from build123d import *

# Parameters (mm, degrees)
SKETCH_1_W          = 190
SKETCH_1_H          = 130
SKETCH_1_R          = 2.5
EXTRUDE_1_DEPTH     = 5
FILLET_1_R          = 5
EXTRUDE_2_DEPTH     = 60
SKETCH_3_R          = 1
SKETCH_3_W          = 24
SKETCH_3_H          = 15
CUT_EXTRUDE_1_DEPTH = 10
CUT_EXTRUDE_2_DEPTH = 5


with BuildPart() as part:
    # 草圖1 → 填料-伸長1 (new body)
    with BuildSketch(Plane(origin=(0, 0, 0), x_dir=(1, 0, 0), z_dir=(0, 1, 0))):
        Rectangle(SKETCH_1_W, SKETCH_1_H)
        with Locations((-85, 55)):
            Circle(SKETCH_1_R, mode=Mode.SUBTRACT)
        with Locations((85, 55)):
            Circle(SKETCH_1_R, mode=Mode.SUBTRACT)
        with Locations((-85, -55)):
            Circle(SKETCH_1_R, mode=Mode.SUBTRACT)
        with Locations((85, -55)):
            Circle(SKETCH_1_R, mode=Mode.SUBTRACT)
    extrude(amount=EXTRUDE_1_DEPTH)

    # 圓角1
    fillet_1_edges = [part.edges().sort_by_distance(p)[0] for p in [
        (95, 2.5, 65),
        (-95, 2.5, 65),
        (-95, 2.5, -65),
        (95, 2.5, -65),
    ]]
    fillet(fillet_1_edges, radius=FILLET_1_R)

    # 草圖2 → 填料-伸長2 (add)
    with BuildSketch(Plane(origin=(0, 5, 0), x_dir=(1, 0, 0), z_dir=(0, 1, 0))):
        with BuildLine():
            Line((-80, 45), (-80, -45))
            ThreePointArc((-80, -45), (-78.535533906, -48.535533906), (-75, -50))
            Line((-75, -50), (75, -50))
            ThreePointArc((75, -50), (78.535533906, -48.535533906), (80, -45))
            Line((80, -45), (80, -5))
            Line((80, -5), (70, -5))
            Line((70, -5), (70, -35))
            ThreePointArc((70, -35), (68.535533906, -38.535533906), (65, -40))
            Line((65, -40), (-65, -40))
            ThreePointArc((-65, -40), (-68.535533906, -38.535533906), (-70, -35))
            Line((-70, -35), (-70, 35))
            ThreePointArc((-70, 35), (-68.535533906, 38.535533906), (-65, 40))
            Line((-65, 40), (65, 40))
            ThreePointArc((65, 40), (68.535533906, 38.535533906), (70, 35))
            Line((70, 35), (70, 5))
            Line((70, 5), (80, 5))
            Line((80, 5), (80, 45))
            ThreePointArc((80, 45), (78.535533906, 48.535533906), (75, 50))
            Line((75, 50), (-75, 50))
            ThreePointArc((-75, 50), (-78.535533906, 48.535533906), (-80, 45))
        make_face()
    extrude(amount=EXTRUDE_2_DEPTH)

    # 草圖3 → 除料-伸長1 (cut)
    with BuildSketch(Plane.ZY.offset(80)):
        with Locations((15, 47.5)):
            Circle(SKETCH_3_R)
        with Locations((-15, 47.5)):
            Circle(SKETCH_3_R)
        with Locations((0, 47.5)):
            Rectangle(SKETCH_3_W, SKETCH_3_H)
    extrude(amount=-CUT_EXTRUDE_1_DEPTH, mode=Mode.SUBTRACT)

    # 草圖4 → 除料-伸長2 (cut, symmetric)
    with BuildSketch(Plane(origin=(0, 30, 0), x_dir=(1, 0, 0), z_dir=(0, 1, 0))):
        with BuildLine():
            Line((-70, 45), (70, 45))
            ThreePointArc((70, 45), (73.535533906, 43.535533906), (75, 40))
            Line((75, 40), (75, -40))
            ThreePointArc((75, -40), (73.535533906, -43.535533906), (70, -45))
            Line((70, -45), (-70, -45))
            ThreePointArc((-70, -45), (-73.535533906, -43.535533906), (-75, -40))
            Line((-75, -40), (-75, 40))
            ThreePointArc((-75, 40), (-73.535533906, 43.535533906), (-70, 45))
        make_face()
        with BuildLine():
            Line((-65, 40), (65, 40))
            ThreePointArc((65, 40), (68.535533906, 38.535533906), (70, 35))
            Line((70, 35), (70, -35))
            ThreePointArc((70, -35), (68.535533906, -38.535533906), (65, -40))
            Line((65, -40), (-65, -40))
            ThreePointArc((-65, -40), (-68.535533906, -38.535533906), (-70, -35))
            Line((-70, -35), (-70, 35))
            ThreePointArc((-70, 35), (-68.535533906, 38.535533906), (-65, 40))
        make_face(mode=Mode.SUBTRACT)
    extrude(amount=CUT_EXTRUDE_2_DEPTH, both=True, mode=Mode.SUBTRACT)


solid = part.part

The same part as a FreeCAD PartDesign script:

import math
import FreeCAD as App
import Part
import Sketcher

V = App.Vector


def edges_at(feature, points):
    """Names of the edges that pass closest to the given points."""
    edges = feature.Shape.Edges
    near = lambda p: min(range(len(edges)), key=lambda i: edges[i].distToShape(Part.Vertex(*p))[0])
    return sorted({f"Edge{near(p) + 1}" for p in points})


def add_polygon(sketch, points):
    """Adds a closed chain of lines whose ends are joined by coincident constraints."""
    first, n = sketch.GeometryCount, len(points)
    for a, b in zip(points, points[1:] + points[:1]):
        sketch.addGeometry(Part.LineSegment(App.Vector(*a, 0), App.Vector(*b, 0)), False)
    for i in range(n):
        sketch.addConstraint(Sketcher.Constraint("Coincident", first + i, 2, first + (i + 1) % n, 1))

doc = App.newDocument("Part")
params = doc.addObject("Spreadsheet::Sheet", "Params")
for row, (alias, value) in enumerate([
    ("sketch1_diameter", "5 mm"),
    ("sketch1_width", "190 mm"),
    ("sketch1_height", "130 mm"),
    ("pad1_length", "5 mm"),
    ("fillet_radius", "5 mm"),
    ("sketch2_radius", "5 mm"),
    ("sketch2_width", "150 mm"),
    ("sketch2_width2", "10 mm"),
    ("sketch2_height", "90 mm"),
    ("sketch2_height2", "40 mm"),
    ("pad2_length", "60 mm"),
    ("sketch3_diameter", "2 mm"),
    ("sketch3_width", "15 mm"),
    ("sketch3_height", "24 mm"),
    ("pocket1_length", "10 mm"),
    ("sketch4_radius", "5 mm"),
    ("sketch4_width", "140 mm"),
    ("sketch4_height", "80 mm"),
    ("pocket2_length", "10 mm"),
], start=1):
    params.set(f"A{row}", alias)
    params.set(f"B{row}", "=" + value)
    params.setAlias(f"B{row}", alias)

body = doc.addObject("PartDesign::Body", "Body")

# Sketch on XZ plane
sketch1 = body.newObject("Sketcher::SketchObject", "Sketch")
sketch1.AttachmentSupport = (doc.getObject("XZ_Plane"), [""])
sketch1.MapMode = "FlatFace"
add_polygon(sketch1, [(-95, -65), (-95, 65), (95, 65), (95, -65)])  # lines 0-3
sketch1.addGeometry(Part.Circle(V(-85, 55, 0), V(0, 0, 1), 2.5), False)  # 4
sketch1.addGeometry(Part.Circle(V(85, 55, 0), V(0, 0, 1), 2.5), False)  # 5
sketch1.addGeometry(Part.Circle(V(-85, -55, 0), V(0, 0, 1), 2.5), False)  # 6
sketch1.addGeometry(Part.Circle(V(85, -55, 0), V(0, 0, 1), 2.5), False)  # 7
sketch1.addConstraint(Sketcher.Constraint("Vertical", 0))
sketch1.addConstraint(Sketcher.Constraint("Horizontal", 1))
sketch1.addConstraint(Sketcher.Constraint("Vertical", 2))
sketch1.addConstraint(Sketcher.Constraint("Horizontal", 3))
sketch1.addConstraint(Sketcher.Constraint("Equal", 4, 5))
sketch1.addConstraint(Sketcher.Constraint("Equal", 5, 6))
sketch1.addConstraint(Sketcher.Constraint("Equal", 6, 7))
sketch1.addConstraint(Sketcher.Constraint("Symmetric", 5, 3, 6, 3, -1, 1))
sketch1.addConstraint(Sketcher.Constraint("Symmetric", 4, 3, 7, 3, -1, 1))
sketch1.addConstraint(Sketcher.Constraint("Symmetric", 0, 2, 2, 2, -1, 1))
sketch1.addConstraint(Sketcher.Constraint("Symmetric", 4, 3, 5, 3, -2))
sketch1.addConstraint(Sketcher.Constraint("Diameter", 4, 5.0))
sketch1.addConstraint(Sketcher.Constraint("DistanceX", 1, 1, 1, 2, 190.0))
sketch1.addConstraint(Sketcher.Constraint("DistanceY", 0, 1, 0, 2, 130.0))
sketch1.addConstraint(Sketcher.Constraint("DistanceX", 4, 3, -1, 1, 85.0))
sketch1.addConstraint(Sketcher.Constraint("DistanceY", -1, 1, 4, 3, 55.0))
sketch1.setExpression("Constraints[15]", "Params.sketch1_diameter")
sketch1.setExpression("Constraints[16]", "Params.sketch1_width")
sketch1.setExpression("Constraints[17]", "Params.sketch1_height")
pad1 = body.newObject("PartDesign::Pad", "Pad")
pad1.Profile = sketch1
pad1.setExpression("Length", "Params.pad1_length")
pad1.Reversed = True
doc.recompute()

fillet = body.newObject("PartDesign::Fillet", "Fillet")
fillet.Base = (pad1, edges_at(pad1, [
    (95, 2.5, 65),
    (-95, 2.5, 65),
    (-95, 2.5, -65),
    (95, 2.5, -65),
]))
fillet.setExpression("Radius", "Params.fillet_radius")

# Sketch on XZ plane
sketch2 = body.newObject("Sketcher::SketchObject", "Sketch001")
sketch2.AttachmentSupport = (doc.getObject("XZ_Plane"), [""])
sketch2.MapMode = "FlatFace"
sketch2.AttachmentOffset = App.Placement(V(0, 0, -5), App.Rotation())
sketch2.addGeometry(Part.LineSegment(V(-80, -45, 0), V(-80, 45, 0)), False)
sketch2.addGeometry(Part.ArcOfCircle(Part.Circle(V(-75, 45, 0), V(0, 0, 1), 5), math.radians(90), math.radians(180)), False)
sketch2.addGeometry(Part.LineSegment(V(-75, 50, 0), V(75, 50, 0)), False)
sketch2.addGeometry(Part.ArcOfCircle(Part.Circle(V(75, 45, 0), V(0, 0, 1), 5), math.radians(0), math.radians(90)), False)
sketch2.addGeometry(Part.LineSegment(V(80, 45, 0), V(80, 5, 0)), False)
sketch2.addGeometry(Part.LineSegment(V(80, 5, 0), V(70, 5, 0)), False)
sketch2.addGeometry(Part.LineSegment(V(70, 5, 0), V(70, 35, 0)), False)
sketch2.addGeometry(Part.ArcOfCircle(Part.Circle(V(65, 35, 0), V(0, 0, 1), 5), math.radians(0), math.radians(90)), False)
sketch2.addGeometry(Part.LineSegment(V(65, 40, 0), V(-65, 40, 0)), False)
sketch2.addGeometry(Part.ArcOfCircle(Part.Circle(V(-65, 35, 0), V(0, 0, 1), 5), math.radians(90), math.radians(180)), False)
sketch2.addGeometry(Part.LineSegment(V(-70, 35, 0), V(-70, -35, 0)), False)
sketch2.addGeometry(Part.ArcOfCircle(Part.Circle(V(-65, -35, 0), V(0, 0, 1), 5), math.radians(180), math.radians(270)), False)
sketch2.addGeometry(Part.LineSegment(V(-65, -40, 0), V(65, -40, 0)), False)
sketch2.addGeometry(Part.ArcOfCircle(Part.Circle(V(65, -35, 0), V(0, 0, 1), 5), math.radians(-90), math.radians(0)), False)
sketch2.addGeometry(Part.LineSegment(V(70, -35, 0), V(70, -5, 0)), False)
sketch2.addGeometry(Part.LineSegment(V(70, -5, 0), V(80, -5, 0)), False)
sketch2.addGeometry(Part.LineSegment(V(80, -5, 0), V(80, -45, 0)), False)
sketch2.addGeometry(Part.ArcOfCircle(Part.Circle(V(75, -45, 0), V(0, 0, 1), 5), math.radians(-90), math.radians(0)), False)
sketch2.addGeometry(Part.LineSegment(V(75, -50, 0), V(-75, -50, 0)), False)
sketch2.addGeometry(Part.ArcOfCircle(Part.Circle(V(-75, -45, 0), V(0, 0, 1), 5), math.radians(180), math.radians(270)), False)
sketch2.addConstraint(Sketcher.Constraint("Tangent", 0, 2, 1, 2))
sketch2.addConstraint(Sketcher.Constraint("Tangent", 1, 1, 2, 1))
sketch2.addConstraint(Sketcher.Constraint("Tangent", 2, 2, 3, 2))
sketch2.addConstraint(Sketcher.Constraint("Tangent", 3, 1, 4, 1))
sketch2.addConstraint(Sketcher.Constraint("Coincident", 4, 2, 5, 1))
sketch2.addConstraint(Sketcher.Constraint("Coincident", 5, 2, 6, 1))
sketch2.addConstraint(Sketcher.Constraint("Tangent", 6, 2, 7, 1))
sketch2.addConstraint(Sketcher.Constraint("Tangent", 7, 2, 8, 1))
sketch2.addConstraint(Sketcher.Constraint("Tangent", 8, 2, 9, 1))
sketch2.addConstraint(Sketcher.Constraint("Tangent", 9, 2, 10, 1))
sketch2.addConstraint(Sketcher.Constraint("Tangent", 10, 2, 11, 1))
sketch2.addConstraint(Sketcher.Constraint("Tangent", 11, 2, 12, 1))
sketch2.addConstraint(Sketcher.Constraint("Tangent", 12, 2, 13, 1))
sketch2.addConstraint(Sketcher.Constraint("Tangent", 13, 2, 14, 1))
sketch2.addConstraint(Sketcher.Constraint("Coincident", 14, 2, 15, 1))
sketch2.addConstraint(Sketcher.Constraint("Coincident", 15, 2, 16, 1))
sketch2.addConstraint(Sketcher.Constraint("Tangent", 16, 2, 17, 2))
sketch2.addConstraint(Sketcher.Constraint("Tangent", 17, 1, 18, 1))
sketch2.addConstraint(Sketcher.Constraint("Tangent", 18, 2, 19, 2))
sketch2.addConstraint(Sketcher.Constraint("Tangent", 19, 1, 0, 1))
sketch2.addConstraint(Sketcher.Constraint("Vertical", 0))
sketch2.addConstraint(Sketcher.Constraint("Horizontal", 2))
sketch2.addConstraint(Sketcher.Constraint("Vertical", 4))
sketch2.addConstraint(Sketcher.Constraint("Horizontal", 5))
sketch2.addConstraint(Sketcher.Constraint("Vertical", 6))
sketch2.addConstraint(Sketcher.Constraint("Horizontal", 8))
sketch2.addConstraint(Sketcher.Constraint("Vertical", 10))
sketch2.addConstraint(Sketcher.Constraint("Horizontal", 12))
sketch2.addConstraint(Sketcher.Constraint("Vertical", 14))
sketch2.addConstraint(Sketcher.Constraint("Horizontal", 15))
sketch2.addConstraint(Sketcher.Constraint("Vertical", 16))
sketch2.addConstraint(Sketcher.Constraint("Horizontal", 18))
sketch2.addConstraint(Sketcher.Constraint("Equal", 1, 3))
sketch2.addConstraint(Sketcher.Constraint("Equal", 3, 7))
sketch2.addConstraint(Sketcher.Constraint("Equal", 7, 9))
sketch2.addConstraint(Sketcher.Constraint("Equal", 9, 11))
sketch2.addConstraint(Sketcher.Constraint("Equal", 11, 13))
sketch2.addConstraint(Sketcher.Constraint("Equal", 13, 17))
sketch2.addConstraint(Sketcher.Constraint("Equal", 17, 19))
sketch2.addConstraint(Sketcher.Constraint("Symmetric", 7, 3, 11, 3, -1, 1))
sketch2.addConstraint(Sketcher.Constraint("Symmetric", 1, 3, 17, 3, -1, 1))
sketch2.addConstraint(Sketcher.Constraint("Symmetric", 5, 2, 14, 2, -1))
sketch2.addConstraint(Sketcher.Constraint("Vertical", 3, 3, 17, 3))
sketch2.addConstraint(Sketcher.Constraint("Radius", 1, 5.0))
sketch2.addConstraint(Sketcher.Constraint("DistanceX", 2, 1, 2, 2, 150.0))
sketch2.addConstraint(Sketcher.Constraint("DistanceX", 5, 2, 5, 1, 10.0))
sketch2.addConstraint(Sketcher.Constraint("DistanceY", 0, 1, 0, 2, 90.0))
sketch2.addConstraint(Sketcher.Constraint("DistanceY", 4, 2, 4, 1, 40.0))
sketch2.addConstraint(Sketcher.Constraint("DistanceY", 6, 1, 6, 2, 30.0))
sketch2.setExpression("Constraints[43]", "Params.sketch2_radius")
sketch2.setExpression("Constraints[44]", "Params.sketch2_width")
sketch2.setExpression("Constraints[45]", "Params.sketch2_width2")
sketch2.setExpression("Constraints[46]", "Params.sketch2_height")
sketch2.setExpression("Constraints[47]", "Params.sketch2_height2")
pad2 = body.newObject("PartDesign::Pad", "Pad001")
pad2.Profile = sketch2
pad2.setExpression("Length", "Params.pad2_length")
pad2.Reversed = True

# Sketch on YZ plane
sketch3 = body.newObject("Sketcher::SketchObject", "Sketch002")
sketch3.AttachmentSupport = (doc.getObject("YZ_Plane"), [""])
sketch3.MapMode = "FlatFace"
sketch3.AttachmentOffset = App.Placement(V(0, 0, -80), App.Rotation())
sketch3.addGeometry(Part.Circle(V(47.5, 15, 0), V(0, 0, 1), 1), False)  # 0
sketch3.addGeometry(Part.Circle(V(47.5, -15, 0), V(0, 0, 1), 1), False)  # 1
add_polygon(sketch3, [(55, -12), (40, -12), (40, 12), (55, 12)])  # lines 2-5
sketch3.addConstraint(Sketcher.Constraint("Horizontal", 2))
sketch3.addConstraint(Sketcher.Constraint("Vertical", 3))
sketch3.addConstraint(Sketcher.Constraint("Horizontal", 4))
sketch3.addConstraint(Sketcher.Constraint("Vertical", 5))
sketch3.addConstraint(Sketcher.Constraint("Equal", 0, 1))
sketch3.addConstraint(Sketcher.Constraint("Symmetric", 0, 3, 1, 3, -1))
sketch3.addConstraint(Sketcher.Constraint("Diameter", 0, 2.0))
sketch3.addConstraint(Sketcher.Constraint("DistanceX", 2, 2, 2, 1, 15.0))
sketch3.addConstraint(Sketcher.Constraint("DistanceY", 3, 1, 3, 2, 24.0))
sketch3.addConstraint(Sketcher.Constraint("DistanceY", -1, 1, 0, 3, 15.0))
sketch3.addConstraint(Sketcher.Constraint("DistanceX", -1, 1, 2, 2, 40.0))
sketch3.addConstraint(Sketcher.Constraint("DistanceY", 2, 2, -1, 1, 12.0))
sketch3.addConstraint(Sketcher.Constraint("DistanceX", -1, 1, 0, 3, 47.5))
sketch3.setExpression("Constraints[10]", "Params.sketch3_diameter")
sketch3.setExpression("Constraints[11]", "Params.sketch3_width")
sketch3.setExpression("Constraints[12]", "Params.sketch3_height")
pocket1 = body.newObject("PartDesign::Pocket", "Pocket")
pocket1.Profile = sketch3
pocket1.setExpression("Length", "Params.pocket1_length")
pocket1.Reversed = True

# Sketch on XZ plane
sketch4 = body.newObject("Sketcher::SketchObject", "Sketch003")
sketch4.AttachmentSupport = (doc.getObject("XZ_Plane"), [""])
sketch4.MapMode = "FlatFace"
sketch4.AttachmentOffset = App.Placement(V(0, 0, -30), App.Rotation())
sketch4.addGeometry(Part.LineSegment(V(70, -45, 0), V(-70, -45, 0)), False)
sketch4.addGeometry(Part.ArcOfCircle(Part.Circle(V(-70, -40, 0), V(0, 0, 1), 5), math.radians(180), math.radians(270)), False)
sketch4.addGeometry(Part.LineSegment(V(-75, -40, 0), V(-75, 40, 0)), False)
sketch4.addGeometry(Part.ArcOfCircle(Part.Circle(V(-70, 40, 0), V(0, 0, 1), 5), math.radians(90), math.radians(180)), False)
sketch4.addGeometry(Part.LineSegment(V(-70, 45, 0), V(70, 45, 0)), False)
sketch4.addGeometry(Part.ArcOfCircle(Part.Circle(V(70, 40, 0), V(0, 0, 1), 5), math.radians(0), math.radians(90)), False)
sketch4.addGeometry(Part.LineSegment(V(75, 40, 0), V(75, -40, 0)), False)
sketch4.addGeometry(Part.ArcOfCircle(Part.Circle(V(70, -40, 0), V(0, 0, 1), 5), math.radians(-90), math.radians(0)), False)
sketch4.addGeometry(Part.LineSegment(V(-65, -40, 0), V(65, -40, 0)), False)
sketch4.addGeometry(Part.ArcOfCircle(Part.Circle(V(65, -35, 0), V(0, 0, 1), 5), math.radians(-90), math.radians(0)), False)
sketch4.addGeometry(Part.LineSegment(V(70, -35, 0), V(70, 35, 0)), False)
sketch4.addGeometry(Part.ArcOfCircle(Part.Circle(V(65, 35, 0), V(0, 0, 1), 5), math.radians(0), math.radians(90)), False)
sketch4.addGeometry(Part.LineSegment(V(65, 40, 0), V(-65, 40, 0)), False)
sketch4.addGeometry(Part.ArcOfCircle(Part.Circle(V(-65, 35, 0), V(0, 0, 1), 5), math.radians(90), math.radians(180)), False)
sketch4.addGeometry(Part.LineSegment(V(-70, 35, 0), V(-70, -35, 0)), False)
sketch4.addGeometry(Part.ArcOfCircle(Part.Circle(V(-65, -35, 0), V(0, 0, 1), 5), math.radians(180), math.radians(270)), False)
sketch4.addConstraint(Sketcher.Constraint("Tangent", 0, 2, 1, 2))
sketch4.addConstraint(Sketcher.Constraint("Tangent", 1, 1, 2, 1))
sketch4.addConstraint(Sketcher.Constraint("Tangent", 2, 2, 3, 2))
sketch4.addConstraint(Sketcher.Constraint("Tangent", 3, 1, 4, 1))
sketch4.addConstraint(Sketcher.Constraint("Tangent", 4, 2, 5, 2))
sketch4.addConstraint(Sketcher.Constraint("Tangent", 5, 1, 6, 1))
sketch4.addConstraint(Sketcher.Constraint("Tangent", 6, 2, 7, 2))
sketch4.addConstraint(Sketcher.Constraint("Tangent", 7, 1, 0, 1))
sketch4.addConstraint(Sketcher.Constraint("Tangent", 8, 2, 9, 1))
sketch4.addConstraint(Sketcher.Constraint("Tangent", 9, 2, 10, 1))
sketch4.addConstraint(Sketcher.Constraint("Tangent", 10, 2, 11, 1))
sketch4.addConstraint(Sketcher.Constraint("Tangent", 11, 2, 12, 1))
sketch4.addConstraint(Sketcher.Constraint("Tangent", 12, 2, 13, 1))
sketch4.addConstraint(Sketcher.Constraint("Tangent", 13, 2, 14, 1))
sketch4.addConstraint(Sketcher.Constraint("Tangent", 14, 2, 15, 1))
sketch4.addConstraint(Sketcher.Constraint("Tangent", 15, 2, 8, 1))
sketch4.addConstraint(Sketcher.Constraint("Horizontal", 0))
sketch4.addConstraint(Sketcher.Constraint("Vertical", 2))
sketch4.addConstraint(Sketcher.Constraint("Horizontal", 4))
sketch4.addConstraint(Sketcher.Constraint("Vertical", 6))
sketch4.addConstraint(Sketcher.Constraint("Horizontal", 8))
sketch4.addConstraint(Sketcher.Constraint("Vertical", 10))
sketch4.addConstraint(Sketcher.Constraint("Horizontal", 12))
sketch4.addConstraint(Sketcher.Constraint("Vertical", 14))
sketch4.addConstraint(Sketcher.Constraint("Equal", 1, 3))
sketch4.addConstraint(Sketcher.Constraint("Equal", 3, 5))
sketch4.addConstraint(Sketcher.Constraint("Equal", 5, 7))
sketch4.addConstraint(Sketcher.Constraint("Equal", 7, 9))
sketch4.addConstraint(Sketcher.Constraint("Equal", 9, 11))
sketch4.addConstraint(Sketcher.Constraint("Equal", 11, 13))
sketch4.addConstraint(Sketcher.Constraint("Equal", 13, 15))
sketch4.addConstraint(Sketcher.Constraint("Symmetric", 1, 3, 5, 3, -1, 1))
sketch4.addConstraint(Sketcher.Constraint("Symmetric", 9, 3, 13, 3, -1, 1))
sketch4.addConstraint(Sketcher.Constraint("Horizontal", 6, 2, 8, 2))
sketch4.addConstraint(Sketcher.Constraint("Vertical", 7, 1, 9, 2))
sketch4.addConstraint(Sketcher.Constraint("Radius", 1, 5.0))
sketch4.addConstraint(Sketcher.Constraint("DistanceX", 0, 2, 0, 1, 140.0))
sketch4.addConstraint(Sketcher.Constraint("DistanceY", 2, 1, 2, 2, 80.0))
sketch4.setExpression("Constraints[35]", "Params.sketch4_radius")
sketch4.setExpression("Constraints[36]", "Params.sketch4_width")
sketch4.setExpression("Constraints[37]", "Params.sketch4_height")
pocket2 = body.newObject("PartDesign::Pocket", "Pocket001")
pocket2.Profile = sketch4
pocket2.setExpression("Length", "Params.pocket2_length")
pocket2.Midplane = True

doc.recompute()
